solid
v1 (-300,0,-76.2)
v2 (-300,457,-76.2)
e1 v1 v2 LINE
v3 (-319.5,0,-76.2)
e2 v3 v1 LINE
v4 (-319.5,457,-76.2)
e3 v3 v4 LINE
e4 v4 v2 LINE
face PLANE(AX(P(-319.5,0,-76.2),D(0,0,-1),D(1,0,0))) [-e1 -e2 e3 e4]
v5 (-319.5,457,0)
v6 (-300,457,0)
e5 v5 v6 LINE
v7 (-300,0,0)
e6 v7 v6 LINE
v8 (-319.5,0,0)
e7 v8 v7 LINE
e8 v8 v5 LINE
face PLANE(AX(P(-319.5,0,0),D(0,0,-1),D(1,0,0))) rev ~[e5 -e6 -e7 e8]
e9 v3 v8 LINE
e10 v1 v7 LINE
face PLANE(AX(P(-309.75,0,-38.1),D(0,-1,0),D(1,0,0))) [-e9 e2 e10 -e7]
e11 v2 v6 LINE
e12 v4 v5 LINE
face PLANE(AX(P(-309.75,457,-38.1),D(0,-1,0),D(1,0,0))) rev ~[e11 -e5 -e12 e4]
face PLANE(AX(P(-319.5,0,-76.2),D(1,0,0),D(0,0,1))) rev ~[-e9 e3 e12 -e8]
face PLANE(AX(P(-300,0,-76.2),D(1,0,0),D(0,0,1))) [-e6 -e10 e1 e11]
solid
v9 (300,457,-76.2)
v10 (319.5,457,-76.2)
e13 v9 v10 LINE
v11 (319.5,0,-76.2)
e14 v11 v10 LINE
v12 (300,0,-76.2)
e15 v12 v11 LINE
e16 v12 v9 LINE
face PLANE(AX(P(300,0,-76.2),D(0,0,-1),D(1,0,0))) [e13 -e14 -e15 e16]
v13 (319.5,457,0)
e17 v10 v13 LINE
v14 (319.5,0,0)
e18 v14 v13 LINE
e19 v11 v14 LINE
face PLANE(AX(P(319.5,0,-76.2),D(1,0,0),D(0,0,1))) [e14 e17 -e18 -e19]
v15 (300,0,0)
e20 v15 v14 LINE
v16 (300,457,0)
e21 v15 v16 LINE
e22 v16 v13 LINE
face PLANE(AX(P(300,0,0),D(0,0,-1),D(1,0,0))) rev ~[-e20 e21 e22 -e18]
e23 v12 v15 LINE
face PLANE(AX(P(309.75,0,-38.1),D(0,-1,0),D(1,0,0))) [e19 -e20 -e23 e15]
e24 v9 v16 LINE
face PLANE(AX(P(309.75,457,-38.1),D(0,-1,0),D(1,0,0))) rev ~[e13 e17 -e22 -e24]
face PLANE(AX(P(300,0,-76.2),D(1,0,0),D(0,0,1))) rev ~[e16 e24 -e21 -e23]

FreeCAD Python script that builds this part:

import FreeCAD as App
import Part
import Sketcher
from FreeCAD import Vector
Q = App.Units.Quantity

doc = App.newDocument("Part")
body = doc.addObject("PartDesign::Body", "Body")
body.AllowCompound = True

sketch1 = body.newObject("Sketcher::SketchObject", "Sketch")
sketch1.AttachmentSupport = (doc.getObject("XZ_Plane"), [""])
sketch1.MapMode = "FlatFace"
sketch1.addGeometry(Part.LineSegment(Vector(300, 0, 0), Vector(300, -76, 0)), False)
sketch1.addGeometry(Part.LineSegment(Vector(300, -76, 0), Vector(320, -76, 0)), False)
sketch1.addGeometry(Part.LineSegment(Vector(320, -76, 0), Vector(320, 0, 0)), False)
sketch1.addGeometry(Part.LineSegment(Vector(320, 0, 0), Vector(300, 0, 0)), False)
sketch1.addGeometry(Part.LineSegment(Vector(-320, 0, 0), Vector(-320, -76, 0)), False)
sketch1.addGeometry(Part.LineSegment(Vector(-320, -76, 0), Vector(-300, -76, 0)), False)
sketch1.addGeometry(Part.LineSegment(Vector(-300, -76, 0), Vector(-300, 0, 0)), False)
sketch1.addGeometry(Part.LineSegment(Vector(-300, 0, 0), Vector(-320, 0, 0)), False)
sketch1.addConstraint(Sketcher.Constraint("Coincident", 0, 2, 1, 1))
sketch1.addConstraint(Sketcher.Constraint("Coincident", 1, 2, 2, 1))
sketch1.addConstraint(Sketcher.Constraint("Coincident", 2, 2, 3, 1))
sketch1.addConstraint(Sketcher.Constraint("Coincident", 3, 2, 0, 1))
sketch1.addConstraint(Sketcher.Constraint("Coincident", 4, 2, 5, 1))
sketch1.addConstraint(Sketcher.Constraint("Coincident", 5, 2, 6, 1))
sketch1.addConstraint(Sketcher.Constraint("Coincident", 6, 2, 7, 1))
sketch1.addConstraint(Sketcher.Constraint("Coincident", 7, 2, 4, 1))
sketch1.addConstraint(Sketcher.Constraint("Vertical", 0))
sketch1.addConstraint(Sketcher.Constraint("Horizontal", 1))
sketch1.addConstraint(Sketcher.Constraint("Vertical", 2))
sketch1.addConstraint(Sketcher.Constraint("Horizontal", 3))
sketch1.addConstraint(Sketcher.Constraint("Vertical", 4))
sketch1.addConstraint(Sketcher.Constraint("Horizontal", 5))
sketch1.addConstraint(Sketcher.Constraint("Vertical", 6))
sketch1.addConstraint(Sketcher.Constraint("Horizontal", 7))
sketch1.addConstraint(Sketcher.Constraint("Symmetric", 3, 2, 6, 2, -1, 1))
sketch1.addConstraint(Sketcher.Constraint("Symmetric", 1, 2, 4, 2, -2))
sketch1.addConstraint(Sketcher.Constraint("PointOnObject", 2, 2, -1))
sketch1.addConstraint(Sketcher.Constraint("DistanceX", 1, 1, 1, 2, Q("19.5 mm")))
sketch1.addConstraint(Sketcher.Constraint("DistanceY", 0, 2, 0, 1, Q("76.2 mm")))
sketch1.addConstraint(Sketcher.Constraint("DistanceX", -1, 1, 0, 2, Q("300 mm")))
pad1 = body.newObject("PartDesign::Pad", "Pad")
pad1.Profile = sketch1
pad1.Length = 457
pad1.Reversed = True

doc.recompute()
